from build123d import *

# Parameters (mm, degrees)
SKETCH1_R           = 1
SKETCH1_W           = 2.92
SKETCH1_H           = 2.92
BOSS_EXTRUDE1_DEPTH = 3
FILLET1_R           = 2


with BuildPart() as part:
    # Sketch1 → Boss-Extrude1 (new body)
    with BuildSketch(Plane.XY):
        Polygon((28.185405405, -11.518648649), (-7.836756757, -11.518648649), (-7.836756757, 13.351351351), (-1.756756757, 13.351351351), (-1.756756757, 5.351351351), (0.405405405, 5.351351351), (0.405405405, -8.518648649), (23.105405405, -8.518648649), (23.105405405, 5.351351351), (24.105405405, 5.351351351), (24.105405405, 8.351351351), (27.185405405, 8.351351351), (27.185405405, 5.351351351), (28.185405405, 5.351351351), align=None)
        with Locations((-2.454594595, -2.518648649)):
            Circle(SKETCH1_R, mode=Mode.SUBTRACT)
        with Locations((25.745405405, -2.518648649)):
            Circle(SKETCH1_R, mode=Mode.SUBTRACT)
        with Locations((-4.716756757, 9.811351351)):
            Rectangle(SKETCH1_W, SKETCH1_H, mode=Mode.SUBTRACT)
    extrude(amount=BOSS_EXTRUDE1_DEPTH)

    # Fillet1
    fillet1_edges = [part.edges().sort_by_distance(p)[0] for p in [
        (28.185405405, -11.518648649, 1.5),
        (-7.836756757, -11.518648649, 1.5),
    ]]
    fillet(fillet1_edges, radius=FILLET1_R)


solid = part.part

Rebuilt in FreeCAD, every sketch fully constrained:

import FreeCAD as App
import Part
import Sketcher

V = App.Vector
Q = App.Units.Quantity


def edges_at(feature, points):
    """Names of the edges that pass closest to the given points."""
    edges = feature.Shape.Edges
    near = lambda p: min(range(len(edges)), key=lambda i: edges[i].distToShape(Part.Vertex(*p))[0])
    return sorted({f"Edge{near(p) + 1}" for p in points})


def add_polygon(sketch, points):
    """Adds a closed chain of lines whose ends are joined by coincident constraints."""
    first, n = sketch.GeometryCount, len(points)
    for a, b in zip(points, points[1:] + points[:1]):
        sketch.addGeometry(Part.LineSegment(App.Vector(*a, 0), App.Vector(*b, 0)), False)
    for i in range(n):
        sketch.addConstraint(Sketcher.Constraint("Coincident", first + i, 2, first + (i + 1) % n, 1))

doc = App.newDocument("Part")
params = doc.addObject("Spreadsheet::Sheet", "Params")
for row, (alias, value) in enumerate([
    ("sketch1_diameter", "2 mm"),
    ("sketch1_width", "1 mm"),
    ("sketch1_height", "3 mm"),
    ("sketch1_height2", "8 mm"),
    ("sketch1_width2", "22.7 mm"),
    ("pad1_length", "3 mm"),
    ("fillet_radius", "2 mm"),
], start=1):
    params.set(f"A{row}", alias)
    params.set(f"B{row}", "=" + value)
    params.setAlias(f"B{row}", alias)

body = doc.addObject("PartDesign::Body", "Body")

# Sketch on XY plane
sketch1 = body.newObject("Sketcher::SketchObject", "Sketch")
sketch1.AttachmentSupport = (doc.getObject("XY_Plane"), [""])
sketch1.MapMode = "FlatFace"
add_polygon(sketch1, [(-7.8, -11.5), (28.2, -11.5), (28.2, 5.4), (27.2, 5.4), (27.2, 8.4), (24.1, 8.4), (24.1, 5.4), (23.1, 5.4), (23.1, -8.5), (0.4, -8.5), (0.4, 5.4), (-1.8, 5.4), (-1.8, 13.4), (-7.8, 13.4)])  # lines 0-13
sketch1.addGeometry(Part.Circle(V(25.7, -2.5, 0), V(0, 0, 1), 1), False)  # 14
sketch1.addGeometry(Part.Circle(V(-2.5, -2.5, 0), V(0, 0, 1), 1), False)  # 15
add_polygon(sketch1, [(-6.2, 8.4), (-6.2, 11.3), (-3.3, 11.3), (-3.3, 8.4)])  # lines 16-19
sketch1.addConstraint(Sketcher.Constraint("Horizontal", 0))
sketch1.addConstraint(Sketcher.Constraint("Vertical", 1))
sketch1.addConstraint(Sketcher.Constraint("Horizontal", 2))
sketch1.addConstraint(Sketcher.Constraint("Vertical", 3))
sketch1.addConstraint(Sketcher.Constraint("Horizontal", 4))
sketch1.addConstraint(Sketcher.Constraint("Vertical", 5))
sketch1.addConstraint(Sketcher.Constraint("Horizontal", 6))
sketch1.addConstraint(Sketcher.Constraint("Vertical", 7))
sketch1.addConstraint(Sketcher.Constraint("Horizontal", 8))
sketch1.addConstraint(Sketcher.Constraint("Vertical", 9))
sketch1.addConstraint(Sketcher.Constraint("Horizontal", 10))
sketch1.addConstraint(Sketcher.Constraint("Vertical", 11))
sketch1.addConstraint(Sketcher.Constraint("Horizontal", 12))
sketch1.addConstraint(Sketcher.Constraint("Vertical", 13))
sketch1.addConstraint(Sketcher.Constraint("Vertical", 16))
sketch1.addConstraint(Sketcher.Constraint("Horizontal", 17))
sketch1.addConstraint(Sketcher.Constraint("Vertical", 18))
sketch1.addConstraint(Sketcher.Constraint("Horizontal", 19))
sketch1.addConstraint(Sketcher.Constraint("Equal", 14, 15))
sketch1.addConstraint(Sketcher.Constraint("Horizontal", 14, 3, 15, 3))
sketch1.addConstraint(Sketcher.Constraint("Horizontal", 2, 2, 5, 2))
sketch1.addConstraint(Sketcher.Constraint("Horizontal", 6, 2, 9, 2))
sketch1.addConstraint(Sketcher.Constraint("Horizontal", 4, 2, 18, 2))
sketch1.addConstraint(Sketcher.Constraint("Equal", 2, 6))
sketch1.addConstraint(Sketcher.Constraint("Equal", 19, 16))
sketch1.addConstraint(Sketcher.Constraint("Diameter", 14, Q("2 mm")))
sketch1.addConstraint(Sketcher.Constraint("DistanceX", 2, 2, 2, 1, Q("1 mm")))
sketch1.addConstraint(Sketcher.Constraint("DistanceY", 3, 1, 3, 2, Q("3 mm")))
sketch1.addConstraint(Sketcher.Constraint("DistanceY", 11, 1, 11, 2, Q("8 mm")))
sketch1.addConstraint(Sketcher.Constraint("DistanceX", 8, 2, 8, 1, Q("22.7 mm")))
sketch1.addConstraint(Sketcher.Constraint("DistanceY", 0, 2, 14, 3, Q("9 mm")))
sketch1.addConstraint(Sketcher.Constraint("DistanceY", 0, 2, 7, 2, Q("3 mm")))
sketch1.addConstraint(Sketcher.Constraint("DistanceX", 4, 2, 4, 1, Q("3.08 mm")))
sketch1.addConstraint(Sketcher.Constraint("DistanceX", 12, 2, 12, 1, Q("6.08 mm")))
sketch1.addConstraint(Sketcher.Constraint("DistanceX", 17, 1, 17, 2, Q("2.92 mm")))
sketch1.addConstraint(Sketcher.Constraint("DistanceY", 1, 1, 1, 2, Q("16.87 mm")))
sketch1.addConstraint(Sketcher.Constraint("DistanceX", 15, 3, 14, 3, Q("28.2 mm")))
sketch1.addConstraint(Sketcher.Constraint("DistanceX", 17, 2, 11, 2, Q("1.5 mm")))
sketch1.addConstraint(Sketcher.Constraint("DistanceX", 14, 3, 0, 2, Q("2.44 mm")))
sketch1.addConstraint(Sketcher.Constraint("DistanceX", 0, 1, 0, 2, Q("36.022162 mm")))
sketch1.addConstraint(Sketcher.Constraint("DistanceY", 14, 3, -1, 1, Q("2.518649 mm")))
sketch1.addConstraint(Sketcher.Constraint("DistanceX", -1, 1, 14, 3, Q("25.745405 mm")))
sketch1.setExpression("Constraints[43]", "Params.sketch1_diameter")
sketch1.setExpression("Constraints[44]", "Params.sketch1_width")
sketch1.setExpression("Constraints[45]", "Params.sketch1_height")
sketch1.setExpression("Constraints[46]", "Params.sketch1_height2")
sketch1.setExpression("Constraints[47]", "Params.sketch1_width2")
pad1 = body.newObject("PartDesign::Pad", "Pad")
pad1.Profile = sketch1
pad1.setExpression("Length", "Params.pad1_length")
doc.recompute()

fillet = body.newObject("PartDesign::Fillet", "Fillet")
fillet.Base = (pad1, edges_at(pad1, [(28.185, -11.519, 1.5), (-7.837, -11.519, 1.5)]))
fillet.setExpression("Radius", "Params.fillet_radius")

doc.recompute()
